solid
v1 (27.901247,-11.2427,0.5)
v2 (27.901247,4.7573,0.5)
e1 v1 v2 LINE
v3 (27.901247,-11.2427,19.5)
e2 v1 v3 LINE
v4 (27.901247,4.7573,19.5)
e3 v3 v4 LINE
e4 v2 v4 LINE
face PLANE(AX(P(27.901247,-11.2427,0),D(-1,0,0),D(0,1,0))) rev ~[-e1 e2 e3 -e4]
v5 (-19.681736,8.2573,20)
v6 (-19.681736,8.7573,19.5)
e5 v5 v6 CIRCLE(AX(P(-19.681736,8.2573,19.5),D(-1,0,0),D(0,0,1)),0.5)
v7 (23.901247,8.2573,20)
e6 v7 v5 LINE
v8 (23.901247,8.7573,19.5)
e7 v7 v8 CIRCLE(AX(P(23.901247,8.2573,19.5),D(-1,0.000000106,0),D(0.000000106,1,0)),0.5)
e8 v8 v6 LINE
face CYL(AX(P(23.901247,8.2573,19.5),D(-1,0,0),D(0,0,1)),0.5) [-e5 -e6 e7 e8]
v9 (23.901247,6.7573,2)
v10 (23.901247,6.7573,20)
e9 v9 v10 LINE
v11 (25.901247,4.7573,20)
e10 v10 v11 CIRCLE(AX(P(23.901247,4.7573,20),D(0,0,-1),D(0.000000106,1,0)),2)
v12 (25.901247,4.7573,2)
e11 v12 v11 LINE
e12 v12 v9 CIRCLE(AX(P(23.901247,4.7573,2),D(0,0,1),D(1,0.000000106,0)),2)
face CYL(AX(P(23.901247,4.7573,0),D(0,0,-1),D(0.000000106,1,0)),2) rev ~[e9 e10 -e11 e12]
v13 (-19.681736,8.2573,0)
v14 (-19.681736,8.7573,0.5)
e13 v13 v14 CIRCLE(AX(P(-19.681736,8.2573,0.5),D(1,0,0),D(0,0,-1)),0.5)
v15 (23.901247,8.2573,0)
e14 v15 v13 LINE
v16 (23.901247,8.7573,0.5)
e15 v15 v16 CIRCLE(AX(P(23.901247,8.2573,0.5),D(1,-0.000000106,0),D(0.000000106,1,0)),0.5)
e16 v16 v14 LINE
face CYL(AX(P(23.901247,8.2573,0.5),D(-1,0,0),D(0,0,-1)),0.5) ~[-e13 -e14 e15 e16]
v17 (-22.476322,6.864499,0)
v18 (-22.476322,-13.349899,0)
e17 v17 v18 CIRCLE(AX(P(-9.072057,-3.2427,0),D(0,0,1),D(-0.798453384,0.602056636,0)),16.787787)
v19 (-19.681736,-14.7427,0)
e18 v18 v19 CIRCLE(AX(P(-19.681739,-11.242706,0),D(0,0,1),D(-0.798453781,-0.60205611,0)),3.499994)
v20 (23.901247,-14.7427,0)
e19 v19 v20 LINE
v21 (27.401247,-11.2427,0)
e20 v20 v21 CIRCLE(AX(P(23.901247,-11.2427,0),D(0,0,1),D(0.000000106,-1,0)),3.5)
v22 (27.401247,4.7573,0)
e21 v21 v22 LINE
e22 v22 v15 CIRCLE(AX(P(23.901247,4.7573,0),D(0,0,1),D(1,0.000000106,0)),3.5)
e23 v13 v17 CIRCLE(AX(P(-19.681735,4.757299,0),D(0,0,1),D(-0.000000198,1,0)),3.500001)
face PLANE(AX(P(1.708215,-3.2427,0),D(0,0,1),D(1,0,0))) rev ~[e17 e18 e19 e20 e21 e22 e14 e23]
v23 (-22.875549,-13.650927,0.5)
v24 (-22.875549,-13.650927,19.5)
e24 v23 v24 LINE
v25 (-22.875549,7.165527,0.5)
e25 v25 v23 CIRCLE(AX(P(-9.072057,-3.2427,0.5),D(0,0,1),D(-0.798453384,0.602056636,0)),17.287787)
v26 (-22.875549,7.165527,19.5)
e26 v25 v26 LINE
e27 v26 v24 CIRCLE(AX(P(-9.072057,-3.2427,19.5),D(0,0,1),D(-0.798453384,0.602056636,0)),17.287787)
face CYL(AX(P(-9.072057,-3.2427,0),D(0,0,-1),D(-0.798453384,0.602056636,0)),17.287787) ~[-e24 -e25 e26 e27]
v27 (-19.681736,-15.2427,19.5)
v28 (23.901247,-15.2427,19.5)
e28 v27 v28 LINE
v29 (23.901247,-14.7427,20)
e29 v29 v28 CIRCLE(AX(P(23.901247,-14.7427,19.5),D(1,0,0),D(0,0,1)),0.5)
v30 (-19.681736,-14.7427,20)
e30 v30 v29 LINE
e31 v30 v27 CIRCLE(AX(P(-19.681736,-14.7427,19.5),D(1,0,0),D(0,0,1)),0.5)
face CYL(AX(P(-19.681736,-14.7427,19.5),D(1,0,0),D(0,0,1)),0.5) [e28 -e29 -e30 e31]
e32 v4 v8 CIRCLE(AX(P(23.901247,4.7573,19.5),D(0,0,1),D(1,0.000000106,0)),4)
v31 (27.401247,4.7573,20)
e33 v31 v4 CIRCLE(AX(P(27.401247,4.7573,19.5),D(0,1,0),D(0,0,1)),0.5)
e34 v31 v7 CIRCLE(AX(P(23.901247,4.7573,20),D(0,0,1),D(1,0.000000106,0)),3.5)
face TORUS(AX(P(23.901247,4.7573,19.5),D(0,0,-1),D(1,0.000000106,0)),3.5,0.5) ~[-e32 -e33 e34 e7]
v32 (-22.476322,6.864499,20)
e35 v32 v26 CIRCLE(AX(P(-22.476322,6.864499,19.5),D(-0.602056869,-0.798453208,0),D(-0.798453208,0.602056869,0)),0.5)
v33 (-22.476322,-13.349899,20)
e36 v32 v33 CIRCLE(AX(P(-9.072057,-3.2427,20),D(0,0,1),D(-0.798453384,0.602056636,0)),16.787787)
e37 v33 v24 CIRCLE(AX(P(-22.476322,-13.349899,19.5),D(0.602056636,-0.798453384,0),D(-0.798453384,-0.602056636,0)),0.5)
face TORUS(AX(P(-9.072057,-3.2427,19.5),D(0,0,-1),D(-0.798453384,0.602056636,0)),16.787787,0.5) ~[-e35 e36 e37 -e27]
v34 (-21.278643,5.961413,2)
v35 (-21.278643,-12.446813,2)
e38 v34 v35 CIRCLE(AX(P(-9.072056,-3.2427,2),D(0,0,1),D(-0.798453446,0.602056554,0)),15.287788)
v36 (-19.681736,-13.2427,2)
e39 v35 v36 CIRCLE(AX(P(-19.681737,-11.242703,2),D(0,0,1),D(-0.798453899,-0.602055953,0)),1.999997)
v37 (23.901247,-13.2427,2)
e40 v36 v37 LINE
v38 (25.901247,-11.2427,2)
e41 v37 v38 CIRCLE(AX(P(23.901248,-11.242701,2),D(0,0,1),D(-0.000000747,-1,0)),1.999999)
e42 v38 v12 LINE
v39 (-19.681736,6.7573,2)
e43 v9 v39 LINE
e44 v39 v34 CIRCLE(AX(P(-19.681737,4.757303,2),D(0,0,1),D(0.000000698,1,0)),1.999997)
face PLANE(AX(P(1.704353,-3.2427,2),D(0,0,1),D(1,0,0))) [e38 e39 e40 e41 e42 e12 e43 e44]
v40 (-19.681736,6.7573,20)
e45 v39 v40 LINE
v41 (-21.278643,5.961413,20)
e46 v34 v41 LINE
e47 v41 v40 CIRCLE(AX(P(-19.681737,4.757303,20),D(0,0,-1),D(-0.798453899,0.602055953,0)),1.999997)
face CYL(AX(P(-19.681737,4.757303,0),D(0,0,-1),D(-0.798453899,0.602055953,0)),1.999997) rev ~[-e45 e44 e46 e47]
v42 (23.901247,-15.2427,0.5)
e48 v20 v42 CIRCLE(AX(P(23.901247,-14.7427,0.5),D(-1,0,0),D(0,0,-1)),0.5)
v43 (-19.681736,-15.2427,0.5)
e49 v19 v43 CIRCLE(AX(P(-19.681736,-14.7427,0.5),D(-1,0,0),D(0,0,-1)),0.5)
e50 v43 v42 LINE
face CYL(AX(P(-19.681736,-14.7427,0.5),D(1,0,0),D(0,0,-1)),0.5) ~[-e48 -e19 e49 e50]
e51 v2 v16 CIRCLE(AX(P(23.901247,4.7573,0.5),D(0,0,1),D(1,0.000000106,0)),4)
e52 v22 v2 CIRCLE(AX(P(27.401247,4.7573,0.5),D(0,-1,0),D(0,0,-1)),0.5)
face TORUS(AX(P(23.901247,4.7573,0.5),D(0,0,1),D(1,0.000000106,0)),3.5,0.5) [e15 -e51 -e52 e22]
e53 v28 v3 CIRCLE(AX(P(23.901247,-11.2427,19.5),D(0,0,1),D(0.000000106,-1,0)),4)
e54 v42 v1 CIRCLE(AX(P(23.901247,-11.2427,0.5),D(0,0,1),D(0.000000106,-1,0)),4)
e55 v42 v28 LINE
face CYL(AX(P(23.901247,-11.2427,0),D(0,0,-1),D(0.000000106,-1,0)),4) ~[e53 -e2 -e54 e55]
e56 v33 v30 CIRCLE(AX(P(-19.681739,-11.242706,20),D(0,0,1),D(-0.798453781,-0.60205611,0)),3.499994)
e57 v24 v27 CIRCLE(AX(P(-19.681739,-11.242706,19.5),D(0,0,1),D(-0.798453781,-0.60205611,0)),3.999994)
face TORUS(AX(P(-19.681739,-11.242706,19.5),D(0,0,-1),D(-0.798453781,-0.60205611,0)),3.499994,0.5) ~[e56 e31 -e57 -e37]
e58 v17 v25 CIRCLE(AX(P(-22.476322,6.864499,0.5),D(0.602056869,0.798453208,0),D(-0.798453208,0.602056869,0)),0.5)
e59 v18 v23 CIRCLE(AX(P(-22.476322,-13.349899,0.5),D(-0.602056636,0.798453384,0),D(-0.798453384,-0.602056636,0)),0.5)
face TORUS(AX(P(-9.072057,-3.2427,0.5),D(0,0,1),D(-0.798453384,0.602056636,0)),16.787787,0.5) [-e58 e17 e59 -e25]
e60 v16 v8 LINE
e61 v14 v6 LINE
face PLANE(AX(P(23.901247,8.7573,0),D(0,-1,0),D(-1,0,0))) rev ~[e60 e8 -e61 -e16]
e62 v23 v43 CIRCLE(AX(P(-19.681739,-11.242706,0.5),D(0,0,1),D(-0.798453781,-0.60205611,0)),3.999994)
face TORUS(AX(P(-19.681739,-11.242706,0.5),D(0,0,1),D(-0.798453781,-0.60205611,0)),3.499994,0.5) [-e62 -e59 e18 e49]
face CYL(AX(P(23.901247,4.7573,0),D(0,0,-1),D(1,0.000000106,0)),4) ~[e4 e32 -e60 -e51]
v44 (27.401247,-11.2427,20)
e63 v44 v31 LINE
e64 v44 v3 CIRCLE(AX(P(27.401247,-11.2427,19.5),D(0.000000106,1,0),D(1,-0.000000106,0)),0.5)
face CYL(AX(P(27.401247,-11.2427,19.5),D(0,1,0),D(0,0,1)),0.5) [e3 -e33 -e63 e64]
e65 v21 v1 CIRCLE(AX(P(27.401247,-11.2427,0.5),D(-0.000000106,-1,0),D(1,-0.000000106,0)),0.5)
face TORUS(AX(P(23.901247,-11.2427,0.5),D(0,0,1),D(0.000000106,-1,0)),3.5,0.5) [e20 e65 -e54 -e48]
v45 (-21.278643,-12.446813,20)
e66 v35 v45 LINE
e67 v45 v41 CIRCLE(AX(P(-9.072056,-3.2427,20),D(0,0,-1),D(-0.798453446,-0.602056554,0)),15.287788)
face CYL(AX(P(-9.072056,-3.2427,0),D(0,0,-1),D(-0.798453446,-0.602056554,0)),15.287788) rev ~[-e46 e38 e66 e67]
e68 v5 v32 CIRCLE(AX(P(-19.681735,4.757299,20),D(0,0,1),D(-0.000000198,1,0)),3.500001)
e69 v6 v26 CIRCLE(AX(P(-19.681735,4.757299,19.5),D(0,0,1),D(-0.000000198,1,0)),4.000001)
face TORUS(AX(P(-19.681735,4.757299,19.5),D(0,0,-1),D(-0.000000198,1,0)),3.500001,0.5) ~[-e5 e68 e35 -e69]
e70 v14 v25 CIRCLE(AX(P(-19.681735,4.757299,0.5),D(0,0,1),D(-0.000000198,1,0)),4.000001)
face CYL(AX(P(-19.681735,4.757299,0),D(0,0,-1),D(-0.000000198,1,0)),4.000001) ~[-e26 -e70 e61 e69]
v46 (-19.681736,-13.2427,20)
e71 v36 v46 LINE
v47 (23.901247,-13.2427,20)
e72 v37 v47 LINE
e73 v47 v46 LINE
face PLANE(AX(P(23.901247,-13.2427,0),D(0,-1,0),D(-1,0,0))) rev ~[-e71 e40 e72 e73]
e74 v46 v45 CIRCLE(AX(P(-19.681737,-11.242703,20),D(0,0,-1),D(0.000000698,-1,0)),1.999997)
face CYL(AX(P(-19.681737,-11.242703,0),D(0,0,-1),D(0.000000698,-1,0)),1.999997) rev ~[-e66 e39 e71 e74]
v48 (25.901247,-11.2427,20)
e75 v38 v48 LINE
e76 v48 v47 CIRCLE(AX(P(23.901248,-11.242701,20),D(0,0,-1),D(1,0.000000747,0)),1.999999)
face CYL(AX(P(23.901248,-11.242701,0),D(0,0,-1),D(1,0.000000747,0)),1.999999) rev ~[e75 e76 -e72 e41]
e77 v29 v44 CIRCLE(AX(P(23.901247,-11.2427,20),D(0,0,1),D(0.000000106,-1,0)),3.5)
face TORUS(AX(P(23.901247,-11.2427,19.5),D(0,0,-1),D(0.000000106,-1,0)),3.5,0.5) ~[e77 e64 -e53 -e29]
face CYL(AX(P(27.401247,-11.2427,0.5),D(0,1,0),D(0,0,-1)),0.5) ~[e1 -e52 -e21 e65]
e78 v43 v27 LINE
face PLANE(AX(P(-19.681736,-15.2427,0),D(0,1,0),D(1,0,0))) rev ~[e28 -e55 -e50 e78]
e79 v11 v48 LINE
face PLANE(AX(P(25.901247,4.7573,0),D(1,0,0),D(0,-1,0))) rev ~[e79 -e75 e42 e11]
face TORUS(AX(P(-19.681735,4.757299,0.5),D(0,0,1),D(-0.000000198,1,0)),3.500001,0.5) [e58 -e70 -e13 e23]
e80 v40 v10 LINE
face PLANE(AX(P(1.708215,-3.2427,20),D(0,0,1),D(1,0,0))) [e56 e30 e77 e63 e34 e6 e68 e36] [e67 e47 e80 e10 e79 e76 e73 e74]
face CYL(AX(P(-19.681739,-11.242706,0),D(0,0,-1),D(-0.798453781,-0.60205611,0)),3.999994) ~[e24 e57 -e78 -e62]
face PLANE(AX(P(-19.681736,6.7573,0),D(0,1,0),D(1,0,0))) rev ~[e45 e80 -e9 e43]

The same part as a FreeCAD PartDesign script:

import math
import FreeCAD as App
import Part
import Sketcher
Q = App.Units.Quantity


def edges_at(feature, points):
    """Names of the edges that pass closest to the given points."""
    edges = feature.Shape.Edges
    near = lambda p: min(range(len(edges)), key=lambda i: edges[i].distToShape(Part.Vertex(*p))[0])
    return sorted({f"Edge{near(p) + 1}" for p in points})

doc = App.newDocument("Part")
body = doc.addObject("PartDesign::Body", "Body")

# Sketch on XY plane
sketch1 = body.newObject("Sketcher::SketchObject", "Sketch")
sketch1.AttachmentSupport = (doc.getObject("XY_Plane"), [""])
sketch1.MapMode = "FlatFace"
sketch1.addGeometry(Part.ArcOfCircle(Part.Circle(App.Vector(23.9, 4.8, 0), App.Vector(0, 0, 1), 2), math.radians(0), math.radians(90)), False)
sketch1.addGeometry(Part.LineSegment(App.Vector(23.9, 6.8, 0), App.Vector(-19.7, 6.8, 0)), False)
sketch1.addGeometry(Part.ArcOfCircle(Part.Circle(App.Vector(-19.7, 4.8, 0), App.Vector(0, 0, 1), 2), math.radians(90), math.radians(143)), False)
sketch1.addGeometry(Part.ArcOfCircle(Part.Circle(App.Vector(-9.1, -3.2, 0), App.Vector(0, 0, 1), 15.3), math.radians(143), math.radians(217)), False)
sketch1.addGeometry(Part.ArcOfCircle(Part.Circle(App.Vector(-19.7, -11.2, 0), App.Vector(0, 0, 1), 2), math.radians(-143), math.radians(-90)), False)
sketch1.addGeometry(Part.LineSegment(App.Vector(-19.7, -13.2, 0), App.Vector(23.9, -13.2, 0)), False)
sketch1.addGeometry(Part.ArcOfCircle(Part.Circle(App.Vector(23.9, -11.2, 0), App.Vector(0, 0, 1), 2), math.radians(-90), math.radians(0)), False)
sketch1.addGeometry(Part.LineSegment(App.Vector(25.9, -11.2, 0), App.Vector(25.9, 4.8, 0)), False)
sketch1.addConstraint(Sketcher.Constraint("Tangent", 0, 2, 1, 1))
sketch1.addConstraint(Sketcher.Constraint("Tangent", 1, 2, 2, 1))
sketch1.addConstraint(Sketcher.Constraint("Tangent", 2, 2, 3, 1))
sketch1.addConstraint(Sketcher.Constraint("Tangent", 3, 2, 4, 1))
sketch1.addConstraint(Sketcher.Constraint("Tangent", 4, 2, 5, 1))
sketch1.addConstraint(Sketcher.Constraint("Tangent", 5, 2, 6, 1))
sketch1.addConstraint(Sketcher.Constraint("Tangent", 6, 2, 7, 1))
sketch1.addConstraint(Sketcher.Constraint("Tangent", 7, 2, 0, 1))
sketch1.addConstraint(Sketcher.Constraint("Horizontal", 1))
sketch1.addConstraint(Sketcher.Constraint("Horizontal", 5))
sketch1.addConstraint(Sketcher.Constraint("Vertical", 7))
sketch1.addConstraint(Sketcher.Constraint("Equal", 2, 4))
sketch1.addConstraint(Sketcher.Constraint("Equal", 4, 6))
sketch1.addConstraint(Sketcher.Constraint("Vertical", 2, 3, 4, 3))
sketch1.addConstraint(Sketcher.Constraint("Vertical", 0, 3, 6, 3))
sketch1.addConstraint(Sketcher.Constraint("Radius", 0, Q("2 mm")))
sketch1.addConstraint(Sketcher.Constraint("DistanceY", 7, 1, 7, 2, Q("16 mm")))
sketch1.addConstraint(Sketcher.Constraint("Radius", 3, Q("15.287788 mm")))
sketch1.addConstraint(Sketcher.Constraint("DistanceY", -1, 1, 0, 3, Q("4.7573 mm")))
sketch1.addConstraint(Sketcher.Constraint("DistanceX", 1, 2, 1, 1, Q("43.582983 mm")))
sketch1.addConstraint(Sketcher.Constraint("DistanceX", -1, 1, 6, 3, Q("23.901248 mm")))
pad1 = body.newObject("PartDesign::Pad", "Pad")
pad1.Profile = sketch1
pad1.Length = 2

# Sketch on XY plane
sketch2 = body.newObject("Sketcher::SketchObject", "Sketch001")
sketch2.AttachmentSupport = (doc.getObject("XY_Plane"), [""])
sketch2.MapMode = "FlatFace"
sketch2.addGeometry(Part.LineSegment(App.Vector(27.9, -11.2, 0), App.Vector(27.9, 4.8, 0)), False)
sketch2.addGeometry(Part.ArcOfCircle(Part.Circle(App.Vector(23.9, 4.8, 0), App.Vector(0, 0, 1), 4), math.radians(0), math.radians(90)), False)
sketch2.addGeometry(Part.LineSegment(App.Vector(23.9, 8.8, 0), App.Vector(-19.7, 8.8, 0)), False)
sketch2.addGeometry(Part.ArcOfCircle(Part.Circle(App.Vector(-19.7, 4.8, 0), App.Vector(0, 0, 1), 4), math.radians(90), math.radians(143)), False)
sketch2.addGeometry(Part.ArcOfCircle(Part.Circle(App.Vector(-9.1, -3.2, 0), App.Vector(0, 0, 1), 17.3), math.radians(143), math.radians(217)), False)
sketch2.addGeometry(Part.ArcOfCircle(Part.Circle(App.Vector(-19.7, -11.2, 0), App.Vector(0, 0, 1), 4), math.radians(-143), math.radians(-90)), False)
sketch2.addGeometry(Part.LineSegment(App.Vector(-19.7, -15.2, 0), App.Vector(23.9, -15.2, 0)), False)
sketch2.addGeometry(Part.ArcOfCircle(Part.Circle(App.Vector(23.9, -11.2, 0), App.Vector(0, 0, 1), 4), math.radians(-90), math.radians(0)), False)
sketch2.addGeometry(Part.ArcOfCircle(Part.Circle(App.Vector(-19.7, 4.8, 0), App.Vector(0, 0, 1), 2), math.radians(90), math.radians(143)), False)
sketch2.addGeometry(Part.LineSegment(App.Vector(-19.7, 6.8, 0), App.Vector(23.9, 6.8, 0)), False)
sketch2.addGeometry(Part.ArcOfCircle(Part.Circle(App.Vector(23.9, 4.8, 0), App.Vector(0, 0, 1), 2), math.radians(0), math.radians(90)), False)
sketch2.addGeometry(Part.LineSegment(App.Vector(25.9, 4.8, 0), App.Vector(25.9, -11.2, 0)), False)
sketch2.addGeometry(Part.ArcOfCircle(Part.Circle(App.Vector(23.9, -11.2, 0), App.Vector(0, 0, 1), 2), math.radians(-90), math.radians(0)), False)
sketch2.addGeometry(Part.LineSegment(App.Vector(23.9, -13.2, 0), App.Vector(-19.7, -13.2, 0)), False)
sketch2.addGeometry(Part.ArcOfCircle(Part.Circle(App.Vector(-19.7, -11.2, 0), App.Vector(0, 0, 1), 2), math.radians(-143), math.radians(-90)), False)
sketch2.addGeometry(Part.ArcOfCircle(Part.Circle(App.Vector(-9.1, -3.2, 0), App.Vector(0, 0, 1), 15.3), math.radians(143), math.radians(217)), False)
sketch2.addConstraint(Sketcher.Constraint("Tangent", 0, 2, 1, 1))
sketch2.addConstraint(Sketcher.Constraint("Tangent", 1, 2, 2, 1))
sketch2.addConstraint(Sketcher.Constraint("Tangent", 2, 2, 3, 1))
sketch2.addConstraint(Sketcher.Constraint("Tangent", 3, 2, 4, 1))
sketch2.addConstraint(Sketcher.Constraint("Tangent", 4, 2, 5, 1))
sketch2.addConstraint(Sketcher.Constraint("Tangent", 5, 2, 6, 1))
sketch2.addConstraint(Sketcher.Constraint("Tangent", 6, 2, 7, 1))
sketch2.addConstraint(Sketcher.Constraint("Tangent", 7, 2, 0, 1))
sketch2.addConstraint(Sketcher.Constraint("Tangent", 8, 1, 9, 1))
sketch2.addConstraint(Sketcher.Constraint("Tangent", 9, 2, 10, 2))
sketch2.addConstraint(Sketcher.Constraint("Tangent", 10, 1, 11, 1))
sketch2.addConstraint(Sketcher.Constraint("Tangent", 11, 2, 12, 2))
sketch2.addConstraint(Sketcher.Constraint("Tangent", 12, 1, 13, 1))
sketch2.addConstraint(Sketcher.Constraint("Tangent", 13, 2, 14, 2))
sketch2.addConstraint(Sketcher.Constraint("Tangent", 14, 1, 15, 2))
sketch2.addConstraint(Sketcher.Constraint("Tangent", 15, 1, 8, 2))
sketch2.addConstraint(Sketcher.Constraint("Vertical", 0))
sketch2.addConstraint(Sketcher.Constraint("Horizontal", 2))
sketch2.addConstraint(Sketcher.Constraint("Horizontal", 6))
sketch2.addConstraint(Sketcher.Constraint("Horizontal", 9))
sketch2.addConstraint(Sketcher.Constraint("Vertical", 11))
sketch2.addConstraint(Sketcher.Constraint("Horizontal", 13))
sketch2.addConstraint(Sketcher.Constraint("Coincident", 8, 3, 3, 3))
sketch2.addConstraint(Sketcher.Constraint("Coincident", 10, 3, 1, 3))
sketch2.addConstraint(Sketcher.Constraint("Coincident", 12, 3, 7, 3))
sketch2.addConstraint(Sketcher.Constraint("Coincident", 14, 3, 5, 3))
sketch2.addConstraint(Sketcher.Constraint("Equal", 1, 3))
sketch2.addConstraint(Sketcher.Constraint("Equal", 3, 7))
sketch2.addConstraint(Sketcher.Constraint("Equal", 12, 14))
sketch2.addConstraint(Sketcher.Constraint("Vertical", 5, 3, 8, 3))
sketch2.addConstraint(Sketcher.Constraint("Radius", 1, Q("4 mm")))
sketch2.addConstraint(Sketcher.Constraint("Radius", 10, Q("2 mm")))
sketch2.addConstraint(Sketcher.Constraint("DistanceY", 0, 1, 0, 2, Q("16 mm")))
sketch2.addConstraint(Sketcher.Constraint("Radius", 15, Q("15.287788 mm")))
sketch2.addConstraint(Sketcher.Constraint("Radius", 4, Q("17.287787 mm")))
sketch2.addConstraint(Sketcher.Constraint("DistanceY", -1, 1, 1, 3, Q("4.7573 mm")))
sketch2.addConstraint(Sketcher.Constraint("DistanceX", 2, 2, 2, 1, Q("43.582983 mm")))
sketch2.addConstraint(Sketcher.Constraint("DistanceX", 5, 3, -1, 1, Q("19.681739 mm")))
pad2 = body.newObject("PartDesign::Pad", "Pad001")
pad2.Profile = sketch2
pad2.Length = 20
doc.recompute()

fillet = body.newObject("PartDesign::Fillet", "Fillet")
fillet.Base = (pad2, edges_at(pad2, [(2.11, -15.243, 0)]))
fillet.Radius = 0.5
doc.recompute()

fillet2 = body.newObject("PartDesign::Fillet", "Fillet001")
fillet2.Base = (fillet, edges_at(fillet, [(2.11, -15.243, 20)]))
fillet2.Radius = 0.5

doc.recompute()
